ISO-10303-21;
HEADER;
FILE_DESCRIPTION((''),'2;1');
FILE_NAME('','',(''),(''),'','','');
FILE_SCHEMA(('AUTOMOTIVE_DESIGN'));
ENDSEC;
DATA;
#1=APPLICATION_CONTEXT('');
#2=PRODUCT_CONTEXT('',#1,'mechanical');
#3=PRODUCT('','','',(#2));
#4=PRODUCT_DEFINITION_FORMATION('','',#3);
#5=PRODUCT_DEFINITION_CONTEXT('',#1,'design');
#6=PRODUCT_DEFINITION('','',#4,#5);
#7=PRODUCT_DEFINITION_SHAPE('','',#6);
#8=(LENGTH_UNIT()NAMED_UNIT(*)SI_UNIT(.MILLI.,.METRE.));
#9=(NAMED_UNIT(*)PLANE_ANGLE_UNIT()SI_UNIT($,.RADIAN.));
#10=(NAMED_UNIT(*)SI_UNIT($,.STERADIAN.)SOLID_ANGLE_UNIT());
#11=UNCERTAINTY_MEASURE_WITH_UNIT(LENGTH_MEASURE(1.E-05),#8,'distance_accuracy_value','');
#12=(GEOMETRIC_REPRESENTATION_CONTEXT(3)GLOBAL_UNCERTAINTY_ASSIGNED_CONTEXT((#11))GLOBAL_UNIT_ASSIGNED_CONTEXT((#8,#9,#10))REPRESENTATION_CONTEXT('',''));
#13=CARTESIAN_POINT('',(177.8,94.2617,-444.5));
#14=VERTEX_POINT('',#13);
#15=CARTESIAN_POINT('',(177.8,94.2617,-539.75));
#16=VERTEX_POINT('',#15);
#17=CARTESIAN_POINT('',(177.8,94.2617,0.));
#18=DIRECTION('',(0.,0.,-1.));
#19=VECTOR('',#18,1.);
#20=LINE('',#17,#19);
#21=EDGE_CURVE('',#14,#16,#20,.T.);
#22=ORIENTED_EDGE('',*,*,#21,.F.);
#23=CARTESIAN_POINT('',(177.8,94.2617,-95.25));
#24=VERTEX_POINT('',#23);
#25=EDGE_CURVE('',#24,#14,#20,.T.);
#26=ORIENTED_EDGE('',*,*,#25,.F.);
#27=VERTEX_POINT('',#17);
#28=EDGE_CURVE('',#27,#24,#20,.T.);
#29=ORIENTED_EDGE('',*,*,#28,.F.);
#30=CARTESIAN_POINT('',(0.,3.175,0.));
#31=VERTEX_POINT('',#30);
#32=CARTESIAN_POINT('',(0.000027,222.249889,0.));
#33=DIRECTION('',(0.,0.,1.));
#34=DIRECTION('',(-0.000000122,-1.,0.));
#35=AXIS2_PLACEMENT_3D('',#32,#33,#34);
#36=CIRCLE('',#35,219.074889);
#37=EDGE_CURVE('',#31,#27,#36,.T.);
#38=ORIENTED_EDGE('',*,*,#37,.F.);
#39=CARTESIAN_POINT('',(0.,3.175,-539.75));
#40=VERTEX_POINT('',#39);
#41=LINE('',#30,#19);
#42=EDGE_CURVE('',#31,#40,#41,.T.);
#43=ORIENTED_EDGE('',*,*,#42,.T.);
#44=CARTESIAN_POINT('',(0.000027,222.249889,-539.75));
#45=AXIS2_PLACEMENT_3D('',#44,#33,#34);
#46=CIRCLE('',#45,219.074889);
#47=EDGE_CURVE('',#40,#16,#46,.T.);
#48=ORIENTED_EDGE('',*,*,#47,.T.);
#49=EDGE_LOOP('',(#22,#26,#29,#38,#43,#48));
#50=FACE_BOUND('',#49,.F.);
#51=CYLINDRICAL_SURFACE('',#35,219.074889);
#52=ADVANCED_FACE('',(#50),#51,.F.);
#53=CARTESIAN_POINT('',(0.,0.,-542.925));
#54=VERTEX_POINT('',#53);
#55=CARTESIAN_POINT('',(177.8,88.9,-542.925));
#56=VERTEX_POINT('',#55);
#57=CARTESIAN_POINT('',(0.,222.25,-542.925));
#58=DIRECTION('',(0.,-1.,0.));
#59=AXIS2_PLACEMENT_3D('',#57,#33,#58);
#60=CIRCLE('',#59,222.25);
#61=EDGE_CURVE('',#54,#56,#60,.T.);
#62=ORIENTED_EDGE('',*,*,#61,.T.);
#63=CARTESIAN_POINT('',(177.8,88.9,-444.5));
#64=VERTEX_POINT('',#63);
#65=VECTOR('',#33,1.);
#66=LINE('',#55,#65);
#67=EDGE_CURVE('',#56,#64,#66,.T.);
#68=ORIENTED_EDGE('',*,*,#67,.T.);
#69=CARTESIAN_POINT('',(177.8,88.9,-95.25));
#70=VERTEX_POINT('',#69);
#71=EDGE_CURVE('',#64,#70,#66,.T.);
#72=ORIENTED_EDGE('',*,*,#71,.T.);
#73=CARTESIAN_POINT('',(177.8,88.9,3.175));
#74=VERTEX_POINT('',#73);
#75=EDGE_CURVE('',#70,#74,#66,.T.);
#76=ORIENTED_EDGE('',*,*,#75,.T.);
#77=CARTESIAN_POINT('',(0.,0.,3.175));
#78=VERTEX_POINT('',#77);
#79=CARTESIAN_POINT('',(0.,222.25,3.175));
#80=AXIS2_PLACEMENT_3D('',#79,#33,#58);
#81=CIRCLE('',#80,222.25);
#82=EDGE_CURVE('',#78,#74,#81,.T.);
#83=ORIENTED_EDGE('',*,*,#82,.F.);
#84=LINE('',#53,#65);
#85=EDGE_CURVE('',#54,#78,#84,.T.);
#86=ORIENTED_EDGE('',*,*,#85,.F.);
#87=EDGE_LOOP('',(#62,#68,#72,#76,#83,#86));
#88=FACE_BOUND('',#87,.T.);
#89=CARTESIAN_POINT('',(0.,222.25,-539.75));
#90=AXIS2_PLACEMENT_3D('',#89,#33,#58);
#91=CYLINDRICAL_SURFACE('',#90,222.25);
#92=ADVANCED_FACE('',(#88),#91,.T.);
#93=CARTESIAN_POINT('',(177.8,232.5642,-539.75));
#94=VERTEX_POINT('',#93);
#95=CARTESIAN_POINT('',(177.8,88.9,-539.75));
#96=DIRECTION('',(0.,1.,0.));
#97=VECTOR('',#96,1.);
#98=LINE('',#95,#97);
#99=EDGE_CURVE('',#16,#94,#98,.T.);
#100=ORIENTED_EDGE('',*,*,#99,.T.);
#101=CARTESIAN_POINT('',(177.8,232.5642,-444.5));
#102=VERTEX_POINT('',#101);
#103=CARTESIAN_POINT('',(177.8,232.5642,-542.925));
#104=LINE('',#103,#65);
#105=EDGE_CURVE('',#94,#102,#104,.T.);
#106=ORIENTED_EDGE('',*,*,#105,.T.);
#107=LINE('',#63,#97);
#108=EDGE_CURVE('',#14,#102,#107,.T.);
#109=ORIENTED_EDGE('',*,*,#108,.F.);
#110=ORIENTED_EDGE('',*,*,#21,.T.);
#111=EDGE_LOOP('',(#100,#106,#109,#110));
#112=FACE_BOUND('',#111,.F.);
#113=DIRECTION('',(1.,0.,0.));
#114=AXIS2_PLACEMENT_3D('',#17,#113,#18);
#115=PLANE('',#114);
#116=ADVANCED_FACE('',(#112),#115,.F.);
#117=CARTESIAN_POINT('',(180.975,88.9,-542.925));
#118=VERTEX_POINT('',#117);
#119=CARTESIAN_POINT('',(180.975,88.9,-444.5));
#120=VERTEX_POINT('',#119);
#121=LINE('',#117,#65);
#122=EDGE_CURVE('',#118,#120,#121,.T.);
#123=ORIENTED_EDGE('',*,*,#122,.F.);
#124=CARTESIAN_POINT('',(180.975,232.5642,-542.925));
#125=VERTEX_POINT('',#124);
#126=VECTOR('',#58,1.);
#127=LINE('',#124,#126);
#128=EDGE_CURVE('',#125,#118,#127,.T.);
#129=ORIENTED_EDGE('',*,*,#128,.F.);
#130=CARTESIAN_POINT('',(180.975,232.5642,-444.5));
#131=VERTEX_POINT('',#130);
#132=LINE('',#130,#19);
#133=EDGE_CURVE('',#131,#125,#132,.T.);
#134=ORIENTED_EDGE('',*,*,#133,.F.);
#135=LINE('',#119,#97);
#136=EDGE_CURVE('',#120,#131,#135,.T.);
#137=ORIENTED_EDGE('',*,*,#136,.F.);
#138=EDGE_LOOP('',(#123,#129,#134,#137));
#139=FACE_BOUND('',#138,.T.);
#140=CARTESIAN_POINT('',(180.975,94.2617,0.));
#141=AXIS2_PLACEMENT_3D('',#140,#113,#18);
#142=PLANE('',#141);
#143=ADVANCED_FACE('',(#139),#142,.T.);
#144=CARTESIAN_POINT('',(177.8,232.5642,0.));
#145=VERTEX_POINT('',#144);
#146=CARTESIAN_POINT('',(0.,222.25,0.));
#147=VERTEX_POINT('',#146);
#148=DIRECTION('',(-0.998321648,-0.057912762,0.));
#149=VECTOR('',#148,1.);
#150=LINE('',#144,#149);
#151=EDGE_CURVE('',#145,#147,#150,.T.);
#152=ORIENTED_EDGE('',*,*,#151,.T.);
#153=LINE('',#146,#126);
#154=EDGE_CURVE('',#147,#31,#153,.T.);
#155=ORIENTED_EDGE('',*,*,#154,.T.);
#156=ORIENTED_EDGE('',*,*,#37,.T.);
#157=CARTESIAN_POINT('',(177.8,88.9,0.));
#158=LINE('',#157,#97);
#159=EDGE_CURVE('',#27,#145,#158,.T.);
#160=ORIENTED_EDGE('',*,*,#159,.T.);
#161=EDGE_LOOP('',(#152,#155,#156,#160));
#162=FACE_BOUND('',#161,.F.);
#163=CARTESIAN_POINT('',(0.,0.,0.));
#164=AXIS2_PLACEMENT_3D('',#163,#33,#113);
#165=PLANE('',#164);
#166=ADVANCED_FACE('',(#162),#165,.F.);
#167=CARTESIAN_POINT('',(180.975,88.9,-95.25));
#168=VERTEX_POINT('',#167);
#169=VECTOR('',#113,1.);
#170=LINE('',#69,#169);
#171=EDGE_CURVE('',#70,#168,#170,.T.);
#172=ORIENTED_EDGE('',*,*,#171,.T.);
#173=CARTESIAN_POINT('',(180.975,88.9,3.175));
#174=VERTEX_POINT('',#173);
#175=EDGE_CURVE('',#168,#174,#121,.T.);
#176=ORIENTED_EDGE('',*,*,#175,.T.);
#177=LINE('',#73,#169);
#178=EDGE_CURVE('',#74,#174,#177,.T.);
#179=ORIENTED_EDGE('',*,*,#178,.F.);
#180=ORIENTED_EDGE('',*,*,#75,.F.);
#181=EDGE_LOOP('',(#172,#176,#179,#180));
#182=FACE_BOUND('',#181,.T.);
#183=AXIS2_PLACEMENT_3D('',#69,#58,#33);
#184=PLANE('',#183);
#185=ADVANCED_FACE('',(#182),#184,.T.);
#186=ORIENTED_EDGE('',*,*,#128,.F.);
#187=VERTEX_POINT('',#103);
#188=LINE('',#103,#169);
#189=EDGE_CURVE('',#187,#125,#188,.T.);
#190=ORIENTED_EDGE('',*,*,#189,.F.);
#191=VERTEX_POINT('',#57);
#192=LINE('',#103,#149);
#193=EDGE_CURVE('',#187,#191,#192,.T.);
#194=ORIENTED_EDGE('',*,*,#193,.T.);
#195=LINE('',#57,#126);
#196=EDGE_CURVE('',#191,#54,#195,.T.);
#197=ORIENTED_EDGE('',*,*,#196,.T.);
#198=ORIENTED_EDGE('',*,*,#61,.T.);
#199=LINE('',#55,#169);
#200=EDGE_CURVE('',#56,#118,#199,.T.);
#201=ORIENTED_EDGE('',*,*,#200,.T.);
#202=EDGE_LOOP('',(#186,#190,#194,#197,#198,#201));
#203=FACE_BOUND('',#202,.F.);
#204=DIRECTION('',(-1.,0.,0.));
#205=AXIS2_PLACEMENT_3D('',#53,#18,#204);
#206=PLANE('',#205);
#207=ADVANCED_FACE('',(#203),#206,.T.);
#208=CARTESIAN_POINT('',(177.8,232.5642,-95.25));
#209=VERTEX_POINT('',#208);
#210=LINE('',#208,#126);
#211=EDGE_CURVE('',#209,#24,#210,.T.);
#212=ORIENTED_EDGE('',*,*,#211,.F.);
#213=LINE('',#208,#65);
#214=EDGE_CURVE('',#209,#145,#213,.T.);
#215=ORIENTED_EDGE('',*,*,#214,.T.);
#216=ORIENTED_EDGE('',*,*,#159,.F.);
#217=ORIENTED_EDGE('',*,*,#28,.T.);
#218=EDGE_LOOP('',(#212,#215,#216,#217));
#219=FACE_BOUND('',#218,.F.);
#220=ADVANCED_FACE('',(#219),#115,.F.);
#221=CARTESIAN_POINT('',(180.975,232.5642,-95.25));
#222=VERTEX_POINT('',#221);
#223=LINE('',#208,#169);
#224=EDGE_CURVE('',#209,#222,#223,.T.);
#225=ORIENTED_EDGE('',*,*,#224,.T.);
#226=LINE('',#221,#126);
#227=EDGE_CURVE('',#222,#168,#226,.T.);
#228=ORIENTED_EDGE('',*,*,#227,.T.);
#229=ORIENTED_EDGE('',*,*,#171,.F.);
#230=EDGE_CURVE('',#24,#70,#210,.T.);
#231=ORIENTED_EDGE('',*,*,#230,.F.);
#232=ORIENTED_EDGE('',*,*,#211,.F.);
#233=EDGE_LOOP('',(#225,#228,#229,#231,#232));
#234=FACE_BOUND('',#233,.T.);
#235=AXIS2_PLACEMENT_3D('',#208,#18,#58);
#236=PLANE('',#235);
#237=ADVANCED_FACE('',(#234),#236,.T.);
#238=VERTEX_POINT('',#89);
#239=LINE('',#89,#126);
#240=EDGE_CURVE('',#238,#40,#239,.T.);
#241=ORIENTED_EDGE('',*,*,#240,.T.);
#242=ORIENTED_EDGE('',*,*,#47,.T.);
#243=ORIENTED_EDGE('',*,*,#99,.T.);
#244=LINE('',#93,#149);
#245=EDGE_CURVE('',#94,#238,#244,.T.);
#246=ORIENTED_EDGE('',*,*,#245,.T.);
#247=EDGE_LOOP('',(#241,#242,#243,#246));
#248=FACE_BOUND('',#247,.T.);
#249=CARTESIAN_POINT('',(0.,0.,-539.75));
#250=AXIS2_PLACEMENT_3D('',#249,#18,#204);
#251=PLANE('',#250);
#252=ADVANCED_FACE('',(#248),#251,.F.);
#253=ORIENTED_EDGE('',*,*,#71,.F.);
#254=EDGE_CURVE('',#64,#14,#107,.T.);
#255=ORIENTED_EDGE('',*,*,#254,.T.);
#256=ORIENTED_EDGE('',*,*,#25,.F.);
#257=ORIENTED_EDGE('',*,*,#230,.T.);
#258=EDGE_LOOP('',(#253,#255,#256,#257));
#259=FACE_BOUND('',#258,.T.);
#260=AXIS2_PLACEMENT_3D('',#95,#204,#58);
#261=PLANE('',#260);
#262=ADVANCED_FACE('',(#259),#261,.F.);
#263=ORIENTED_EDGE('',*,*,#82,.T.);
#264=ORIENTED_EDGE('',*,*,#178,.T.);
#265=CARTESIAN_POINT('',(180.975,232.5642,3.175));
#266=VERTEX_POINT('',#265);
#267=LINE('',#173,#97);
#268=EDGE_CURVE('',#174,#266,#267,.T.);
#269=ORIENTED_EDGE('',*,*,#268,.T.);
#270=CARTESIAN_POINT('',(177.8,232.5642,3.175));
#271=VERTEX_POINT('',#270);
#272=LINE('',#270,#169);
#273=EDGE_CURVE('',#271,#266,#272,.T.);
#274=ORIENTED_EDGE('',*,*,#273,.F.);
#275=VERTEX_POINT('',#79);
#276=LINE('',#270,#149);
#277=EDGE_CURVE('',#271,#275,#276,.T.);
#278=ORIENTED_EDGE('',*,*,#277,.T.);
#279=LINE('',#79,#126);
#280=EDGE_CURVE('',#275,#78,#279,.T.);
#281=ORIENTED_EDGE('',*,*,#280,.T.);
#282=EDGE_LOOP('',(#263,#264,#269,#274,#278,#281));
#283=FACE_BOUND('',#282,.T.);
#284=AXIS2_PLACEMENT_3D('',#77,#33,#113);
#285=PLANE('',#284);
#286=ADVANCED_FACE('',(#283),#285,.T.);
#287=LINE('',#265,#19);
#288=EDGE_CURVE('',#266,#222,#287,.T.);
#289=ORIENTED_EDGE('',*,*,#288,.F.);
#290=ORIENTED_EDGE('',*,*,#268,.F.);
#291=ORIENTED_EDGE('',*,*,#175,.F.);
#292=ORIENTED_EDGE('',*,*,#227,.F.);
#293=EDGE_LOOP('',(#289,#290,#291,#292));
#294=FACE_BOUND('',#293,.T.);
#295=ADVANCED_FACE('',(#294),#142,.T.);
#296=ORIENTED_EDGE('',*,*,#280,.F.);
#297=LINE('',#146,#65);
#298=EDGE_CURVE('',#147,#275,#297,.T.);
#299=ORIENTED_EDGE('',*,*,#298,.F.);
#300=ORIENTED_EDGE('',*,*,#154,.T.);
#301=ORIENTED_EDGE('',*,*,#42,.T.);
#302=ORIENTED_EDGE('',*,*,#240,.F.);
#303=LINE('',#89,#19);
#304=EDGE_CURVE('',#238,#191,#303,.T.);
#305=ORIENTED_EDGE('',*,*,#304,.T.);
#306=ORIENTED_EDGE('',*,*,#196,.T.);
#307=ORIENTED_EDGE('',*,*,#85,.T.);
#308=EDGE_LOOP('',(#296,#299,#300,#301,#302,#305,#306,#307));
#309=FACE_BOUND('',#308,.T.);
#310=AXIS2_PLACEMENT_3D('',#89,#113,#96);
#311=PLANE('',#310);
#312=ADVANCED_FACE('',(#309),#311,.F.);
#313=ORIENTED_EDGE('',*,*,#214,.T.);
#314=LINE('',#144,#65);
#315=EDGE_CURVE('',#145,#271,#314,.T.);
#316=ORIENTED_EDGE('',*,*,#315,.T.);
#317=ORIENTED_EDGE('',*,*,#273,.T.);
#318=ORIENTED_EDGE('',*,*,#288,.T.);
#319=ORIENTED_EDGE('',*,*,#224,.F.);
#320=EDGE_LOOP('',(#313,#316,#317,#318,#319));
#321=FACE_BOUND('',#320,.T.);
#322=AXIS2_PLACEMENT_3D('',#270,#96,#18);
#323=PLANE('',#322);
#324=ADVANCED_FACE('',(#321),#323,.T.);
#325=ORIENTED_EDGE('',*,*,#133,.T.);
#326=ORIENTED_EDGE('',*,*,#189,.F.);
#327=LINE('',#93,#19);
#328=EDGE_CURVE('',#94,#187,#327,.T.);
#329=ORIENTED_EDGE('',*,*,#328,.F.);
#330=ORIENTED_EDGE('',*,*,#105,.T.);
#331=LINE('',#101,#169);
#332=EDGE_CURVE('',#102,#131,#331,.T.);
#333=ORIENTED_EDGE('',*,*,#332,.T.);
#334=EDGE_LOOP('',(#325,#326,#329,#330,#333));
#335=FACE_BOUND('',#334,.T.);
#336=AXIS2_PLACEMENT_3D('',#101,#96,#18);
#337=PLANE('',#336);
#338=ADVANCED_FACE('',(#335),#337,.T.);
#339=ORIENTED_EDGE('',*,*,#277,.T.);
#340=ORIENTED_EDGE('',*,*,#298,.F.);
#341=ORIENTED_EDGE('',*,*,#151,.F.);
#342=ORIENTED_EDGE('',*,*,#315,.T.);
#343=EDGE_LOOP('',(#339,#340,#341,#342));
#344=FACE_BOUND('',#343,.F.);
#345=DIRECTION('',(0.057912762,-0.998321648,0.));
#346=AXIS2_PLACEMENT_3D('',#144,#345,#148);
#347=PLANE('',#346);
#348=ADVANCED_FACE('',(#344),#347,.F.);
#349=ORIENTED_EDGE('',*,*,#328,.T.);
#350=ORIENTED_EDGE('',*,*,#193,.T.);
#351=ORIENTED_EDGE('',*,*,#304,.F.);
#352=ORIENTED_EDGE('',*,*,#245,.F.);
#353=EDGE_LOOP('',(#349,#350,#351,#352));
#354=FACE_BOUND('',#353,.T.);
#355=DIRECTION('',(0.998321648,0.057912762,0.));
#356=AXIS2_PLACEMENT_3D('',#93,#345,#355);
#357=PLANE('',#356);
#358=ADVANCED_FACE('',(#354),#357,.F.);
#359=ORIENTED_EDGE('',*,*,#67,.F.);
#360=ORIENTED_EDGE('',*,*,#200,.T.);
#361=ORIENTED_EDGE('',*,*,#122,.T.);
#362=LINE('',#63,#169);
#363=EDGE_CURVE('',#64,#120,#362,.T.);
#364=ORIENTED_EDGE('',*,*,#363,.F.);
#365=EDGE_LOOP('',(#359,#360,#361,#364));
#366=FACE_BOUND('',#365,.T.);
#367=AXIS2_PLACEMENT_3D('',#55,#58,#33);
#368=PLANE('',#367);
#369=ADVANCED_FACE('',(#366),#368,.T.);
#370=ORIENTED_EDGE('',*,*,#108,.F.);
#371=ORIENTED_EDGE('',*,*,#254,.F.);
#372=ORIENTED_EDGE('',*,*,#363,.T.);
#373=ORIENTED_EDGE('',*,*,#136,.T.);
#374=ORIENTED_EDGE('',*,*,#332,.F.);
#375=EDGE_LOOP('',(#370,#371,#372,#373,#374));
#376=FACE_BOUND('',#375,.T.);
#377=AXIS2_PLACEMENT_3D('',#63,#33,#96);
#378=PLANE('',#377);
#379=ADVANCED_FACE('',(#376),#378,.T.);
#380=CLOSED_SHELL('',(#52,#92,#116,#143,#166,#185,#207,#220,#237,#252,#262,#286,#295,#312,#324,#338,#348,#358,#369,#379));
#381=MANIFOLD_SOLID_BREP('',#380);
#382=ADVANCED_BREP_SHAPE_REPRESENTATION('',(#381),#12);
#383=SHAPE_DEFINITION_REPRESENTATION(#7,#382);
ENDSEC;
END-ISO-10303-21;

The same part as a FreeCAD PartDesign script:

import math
import FreeCAD as App
import Part
import Sketcher
Q = App.Units.Quantity

doc = App.newDocument("Part")
params = doc.addObject("Spreadsheet::Sheet", "Params")
for row, (alias, value) in enumerate([
    ("sketch1_radius", "8.75 in"),
    ("sketch1_height", "0.125 in"),
    ("pad1_length", "21.25 in"),
    ("sketch2_radius", "8.75 in"),
    ("pad2_length", "0.125 in"),
    ("sketch3_height", "3.875 in"),
    ("pad3_length", "0.125 in"),
], start=1):
    params.set(f"A{row}", alias)
    params.set(f"B{row}", "=" + value)
    params.setAlias(f"B{row}", alias)

body = doc.addObject("PartDesign::Body", "Body")

sketch1 = body.newObject("Sketcher::SketchObject", "Sketch")
sketch1.AttachmentSupport = (doc.getObject("XY_Plane"), [""])
sketch1.MapMode = "FlatFace"
sketch1.addGeometry([
    Part.LineSegment(App.Vector(0, 3.2, 0), App.Vector(0, 0, 0)),
    Part.ArcOfCircle(Part.Circle(App.Vector(0, 222.2, 0), App.Vector(0, 0, 1), 222.2), math.radians(-90), math.radians(-37)),
    Part.LineSegment(App.Vector(177.8, 88.9, 0), App.Vector(177.8, 94.3, 0)),
    Part.ArcOfCircle(Part.Circle(App.Vector(0, 222.2, 0), App.Vector(0, 0, 1), 219.1), math.radians(-90), math.radians(-36)),
], False)
sketch1.addConstraint([
    Sketcher.Constraint("Coincident", 0, 2, 1, 1),
    Sketcher.Constraint("Coincident", 1, 2, 2, 1),
    Sketcher.Constraint("Coincident", 2, 2, 3, 2),
    Sketcher.Constraint("Coincident", 3, 1, 0, 1),
    Sketcher.Constraint("Vertical", 0),
    Sketcher.Constraint("Vertical", 2),
    Sketcher.Constraint("Coincident", 0, 2, -1, 1),
    Sketcher.Constraint("Coincident", 3, 3, 1, 3),
    Sketcher.Constraint("PointOnObject", 1, 3, -2),
    Sketcher.Constraint("Radius", 1, Q("8.75 in")),
    Sketcher.Constraint("DistanceX", -1, 1, 1, 2, Q("7 in")),
    Sketcher.Constraint("DistanceY", 0, 2, 0, 1, Q("0.125 in")),
])
sketch1.setExpression("Constraints[9]", "Params.sketch1_radius")
sketch1.setExpression("Constraints[11]", "Params.sketch1_height")
pad1 = body.newObject("PartDesign::Pad", "Pad")
pad1.Profile = sketch1
pad1.setExpression("Length", "Params.pad1_length")
pad1.Reversed = True

sketch2 = body.newObject("Sketcher::SketchObject", "Sketch001")
sketch2.AttachmentSupport = (doc.getObject("XY_Plane"), [""])
sketch2.MapMode = "FlatFace"
sketch2.addGeometry([
    Part.LineSegment(App.Vector(0, 222, 0), App.Vector(0, 0, 0)),
    Part.ArcOfCircle(Part.Circle(App.Vector(0, 222, 0), App.Vector(0, 0, 1), 222), math.radians(-90), math.radians(-37)),
    Part.LineSegment(App.Vector(178, 89, 0), App.Vector(178, 233, 0)),
    Part.LineSegment(App.Vector(178, 233, 0), App.Vector(0, 222, 0)),
], False)
sketch2.addConstraint([
    Sketcher.Constraint("Coincident", 0, 2, 1, 1),
    Sketcher.Constraint("Coincident", 1, 2, 2, 1),
    Sketcher.Constraint("Coincident", 2, 2, 3, 1),
    Sketcher.Constraint("Coincident", 3, 2, 0, 1),
    Sketcher.Constraint("Vertical", 0),
    Sketcher.Constraint("Vertical", 2),
    Sketcher.Constraint("Coincident", 0, 2, -1, 1),
    Sketcher.Constraint("Coincident", 3, 2, 1, 3),
    Sketcher.Constraint("Radius", 1, Q("8.75 in")),
    Sketcher.Constraint("DistanceX", -1, 1, 1, 2, Q("7 in")),
    Sketcher.Constraint("Angle", 3, Q("-176.68 deg")),
])
sketch2.setExpression("Constraints[8]", "Params.sketch2_radius")
pad2 = body.newObject("PartDesign::Pad", "Pad001")
pad2.Profile = sketch2
pad2.setExpression("Length", "Params.pad2_length")
doc.recompute()

datumplane = body.newObject("PartDesign::Plane", "DatumPlane")
datumplane.AttachmentSupport = (doc.getObject("XY_Plane"), [""])
datumplane.MapMode = "FlatFace"
datumplane.AttachmentOffset = App.Placement(App.Vector(0, 0, -10.625 * 25.4), App.Rotation())
mirrored = body.newObject("PartDesign::Mirrored", "Mirrored")
mirrored.Originals = [pad2]
mirrored.MirrorPlane = (datumplane, [""])
body.Tip = mirrored

sketch3 = body.newObject("Sketcher::SketchObject", "Sketch002")
sketch3.AttachmentSupport = (doc.getObject("YZ_Plane"), [""])
sketch3.MapMode = "FlatFace"
sketch3.AttachmentOffset = App.Placement(App.Vector(0, 0, 7 * 25.4), App.Rotation())
sketch3.addGeometry([
    Part.LineSegment(App.Vector(89, 3, 0), App.Vector(89, -95, 0)),
    Part.LineSegment(App.Vector(89, -95, 0), App.Vector(233, -95, 0)),
    Part.LineSegment(App.Vector(233, -95, 0), App.Vector(233, 3, 0)),
    Part.LineSegment(App.Vector(233, 3, 0), App.Vector(89, 3, 0)),
    Part.LineSegment(App.Vector(89, -444, 0), App.Vector(89, -543, 0)),
    Part.LineSegment(App.Vector(89, -543, 0), App.Vector(233, -543, 0)),
    Part.LineSegment(App.Vector(233, -543, 0), App.Vector(233, -444, 0)),
    Part.LineSegment(App.Vector(233, -444, 0), App.Vector(89, -444, 0)),
], False)
sketch3.addConstraint([
    Sketcher.Constraint("Coincident", 0, 2, 1, 1),
    Sketcher.Constraint("Coincident", 1, 2, 2, 1),
    Sketcher.Constraint("Coincident", 2, 2, 3, 1),
    Sketcher.Constraint("Coincident", 3, 2, 0, 1),
    Sketcher.Constraint("Coincident", 4, 2, 5, 1),
    Sketcher.Constraint("Coincident", 5, 2, 6, 1),
    Sketcher.Constraint("Coincident", 6, 2, 7, 1),
    Sketcher.Constraint("Coincident", 7, 2, 4, 1),
    Sketcher.Constraint("Vertical", 0),
    Sketcher.Constraint("Horizontal", 1),
    Sketcher.Constraint("Vertical", 2),
    Sketcher.Constraint("Horizontal", 3),
    Sketcher.Constraint("Vertical", 4),
    Sketcher.Constraint("Horizontal", 5),
    Sketcher.Constraint("Vertical", 6),
    Sketcher.Constraint("Horizontal", 7),
    Sketcher.Constraint("Vertical", 3, 2, 4, 2),
    Sketcher.Constraint("Vertical", 2, 2, 5, 2),
    Sketcher.Constraint("Equal", 2, 4),
    Sketcher.Constraint("DistanceY", 0, 2, 0, 1, Q("3.875 in")),
    Sketcher.Constraint("DistanceX", -1, 1, 0, 2, Q("3.5 in")),
    Sketcher.Constraint("DistanceY", 6, 2, -1, 1, Q("17.5 in")),
    Sketcher.Constraint("DistanceY", 4, 2, 3, 2, Q("21.5 in")),
    Sketcher.Constraint("DistanceX", 1, 1, 1, 2, Q("143.6642 mm")),
])
sketch3.setExpression("Constraints[19]", "Params.sketch3_height")
pad3 = body.newObject("PartDesign::Pad", "Pad002")
pad3.Profile = sketch3
pad3.setExpression("Length", "Params.pad3_length")

doc.recompute()
